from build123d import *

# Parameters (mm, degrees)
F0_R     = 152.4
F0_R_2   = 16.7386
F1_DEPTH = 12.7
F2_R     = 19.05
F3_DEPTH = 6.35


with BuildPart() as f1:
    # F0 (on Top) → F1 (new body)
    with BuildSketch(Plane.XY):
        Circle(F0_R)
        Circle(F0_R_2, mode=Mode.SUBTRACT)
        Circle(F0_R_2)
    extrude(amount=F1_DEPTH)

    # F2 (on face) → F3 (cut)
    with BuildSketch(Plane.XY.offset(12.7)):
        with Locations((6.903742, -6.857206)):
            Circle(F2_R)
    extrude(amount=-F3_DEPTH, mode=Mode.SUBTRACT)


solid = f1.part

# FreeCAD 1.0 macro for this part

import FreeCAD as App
import Part
import Sketcher

V = App.Vector
Q = App.Units.Quantity

doc = App.newDocument("Part")
params = doc.addObject("Spreadsheet::Sheet", "Params")
for row, (alias, value) in enumerate([
    ("sketch1_diameter", "12 in"),
    ("pad1_length", "0.5 in"),
    ("sketch2_diameter", "1.5 in"),
    ("pocket1_length", "0.25 in"),
], start=1):
    params.set(f"A{row}", alias)
    params.set(f"B{row}", "=" + value)
    params.setAlias(f"B{row}", alias)

body = doc.addObject("PartDesign::Body", "Body")

sketch1 = doc.addObject("Sketcher::SketchObject", "Sketch")
body.addObject(sketch1)
sketch1.AttachmentSupport = (doc.XY_Plane, [""])
sketch1.MapMode = "FlatFace"
sketch1.addGeometry(Part.Circle(V(0, 0, 0), V(0, 0, 1), 152), False)
sketch1.addConstraint([
    Sketcher.Constraint("Coincident", 0, 3, -1, 1),
    Sketcher.Constraint("Diameter", 0, Q("12 in")),
])
sketch1.setExpression("Constraints[1]", "Params.sketch1_diameter")
pad1 = doc.addObject("PartDesign::Pad", "Pad")
body.addObject(pad1)
pad1.Profile = sketch1
pad1.setExpression("Length", "Params.pad1_length")

sketch2 = doc.addObject("Sketcher::SketchObject", "Sketch001")
body.addObject(sketch2)
sketch2.AttachmentSupport = (doc.XY_Plane, [""])
sketch2.MapMode = "FlatFace"
sketch2.AttachmentOffset = App.Placement(V(0, 0, 0.5 * 25.4), App.Rotation())
sketch2.addGeometry(Part.Circle(V(7, -7, 0), V(0, 0, 1), 19), False)
sketch2.addConstraint([
    Sketcher.Constraint("Diameter", 0, Q("1.5 in")),
    Sketcher.Constraint("DistanceX", -1, 1, 0, 3, Q("6.903742 mm")),
    Sketcher.Constraint("DistanceY", 0, 3, -1, 1, Q("6.857206 mm")),
])
sketch2.setExpression("Constraints[0]", "Params.sketch2_diameter")
pocket1 = doc.addObject("PartDesign::Pocket", "Pocket")
body.addObject(pocket1)
pocket1.Profile = sketch2
pocket1.setExpression("Length", "Params.pocket1_length")

doc.recompute()
